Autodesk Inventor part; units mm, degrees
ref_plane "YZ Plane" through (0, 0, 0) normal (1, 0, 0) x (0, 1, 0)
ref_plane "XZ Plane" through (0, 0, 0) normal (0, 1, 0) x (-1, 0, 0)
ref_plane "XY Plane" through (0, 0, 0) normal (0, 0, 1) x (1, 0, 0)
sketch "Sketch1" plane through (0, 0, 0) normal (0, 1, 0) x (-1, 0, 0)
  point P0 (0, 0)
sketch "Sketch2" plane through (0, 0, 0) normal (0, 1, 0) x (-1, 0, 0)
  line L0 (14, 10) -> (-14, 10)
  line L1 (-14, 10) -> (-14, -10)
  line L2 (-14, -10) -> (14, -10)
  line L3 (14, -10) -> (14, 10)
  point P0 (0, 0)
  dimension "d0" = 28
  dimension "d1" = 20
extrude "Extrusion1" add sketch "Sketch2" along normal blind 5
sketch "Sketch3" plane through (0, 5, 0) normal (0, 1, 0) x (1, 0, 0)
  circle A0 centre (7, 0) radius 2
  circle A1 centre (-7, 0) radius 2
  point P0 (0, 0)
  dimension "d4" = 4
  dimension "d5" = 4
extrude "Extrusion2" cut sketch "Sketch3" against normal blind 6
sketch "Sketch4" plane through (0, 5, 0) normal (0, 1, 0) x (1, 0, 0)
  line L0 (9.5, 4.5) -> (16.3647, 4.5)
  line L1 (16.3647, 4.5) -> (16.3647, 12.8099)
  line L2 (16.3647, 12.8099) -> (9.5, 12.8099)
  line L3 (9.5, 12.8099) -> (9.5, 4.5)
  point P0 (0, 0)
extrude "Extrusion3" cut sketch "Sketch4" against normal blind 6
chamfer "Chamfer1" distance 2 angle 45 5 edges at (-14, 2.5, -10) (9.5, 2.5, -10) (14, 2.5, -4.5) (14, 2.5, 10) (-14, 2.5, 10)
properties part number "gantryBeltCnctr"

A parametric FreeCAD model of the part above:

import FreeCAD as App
import Part
import Sketcher


def edges_at(feature, points):
    """Names of the edges that pass closest to the given points."""
    edges = feature.Shape.Edges
    near = lambda p: min(range(len(edges)), key=lambda i: edges[i].distToShape(Part.Vertex(*p))[0])
    return sorted({f"Edge{near(p) + 1}" for p in points})


def add_polygon(sketch, points):
    """Adds a closed chain of lines whose ends are joined by coincident constraints."""
    first, n = sketch.GeometryCount, len(points)
    for a, b in zip(points, points[1:] + points[:1]):
        sketch.addGeometry(Part.LineSegment(App.Vector(*a, 0), App.Vector(*b, 0)), False)
    for i in range(n):
        sketch.addConstraint(Sketcher.Constraint("Coincident", first + i, 2, first + (i + 1) % n, 1))

doc = App.newDocument("Part")
body = doc.addObject("PartDesign::Body", "Body")

# Sketch on XZ plane
sketch1 = doc.addObject("Sketcher::SketchObject", "Sketch")
body.addObject(sketch1)
sketch1.AttachmentSupport = (doc.XZ_Plane, [""])
sketch1.MapMode = "FlatFace"
add_polygon(sketch1, [(-14, -10), (-14, 10), (14, 10), (14, -10)])  # lines 0-3
sketch1.addConstraint(Sketcher.Constraint("Vertical", 0))
sketch1.addConstraint(Sketcher.Constraint("Horizontal", 1))
sketch1.addConstraint(Sketcher.Constraint("Vertical", 2))
sketch1.addConstraint(Sketcher.Constraint("Horizontal", 3))
sketch1.addConstraint(Sketcher.Constraint("Symmetric", 0, 2, 2, 2, -1, 1))
sketch1.addConstraint(Sketcher.Constraint("DistanceX", 1, 1, 1, 2, 28.0))
sketch1.addConstraint(Sketcher.Constraint("DistanceY", 0, 1, 0, 2, 20.0))
pad1 = doc.addObject("PartDesign::Pad", "Pad")
body.addObject(pad1)
pad1.Profile = sketch1
pad1.Length = 5
pad1.Reversed = True

# Sketch on XZ plane
sketch2 = doc.addObject("Sketcher::SketchObject", "Sketch001")
body.addObject(sketch2)
sketch2.AttachmentSupport = (doc.XZ_Plane, [""])
sketch2.MapMode = "FlatFace"
sketch2.AttachmentOffset = App.Placement(App.Vector(0, 0, -5), App.Rotation())
sketch2.addGeometry(Part.Circle(App.Vector(7, 0, 0), App.Vector(0, 0, 1), 2), False)
sketch2.addGeometry(Part.Circle(App.Vector(-7, 0, 0), App.Vector(0, 0, 1), 2), False)
sketch2.addConstraint(Sketcher.Constraint("Equal", 0, 1))
sketch2.addConstraint(Sketcher.Constraint("Symmetric", 0, 3, 1, 3, -1, 1))
sketch2.addConstraint(Sketcher.Constraint("PointOnObject", 0, 3, -1))
sketch2.addConstraint(Sketcher.Constraint("Diameter", 0, 4.0))
sketch2.addConstraint(Sketcher.Constraint("DistanceX", -1, 1, 0, 3, 7.0))
pocket1 = doc.addObject("PartDesign::Pocket", "Pocket")
body.addObject(pocket1)
pocket1.Profile = sketch2
pocket1.Length = 6
pocket1.Reversed = True

# Sketch on XZ plane
sketch3 = doc.addObject("Sketcher::SketchObject", "Sketch002")
body.addObject(sketch3)
sketch3.AttachmentSupport = (doc.XZ_Plane, [""])
sketch3.MapMode = "FlatFace"
sketch3.AttachmentOffset = App.Placement(App.Vector(0, 0, -5), App.Rotation())
add_polygon(sketch3, [(9.5, -12.8099), (9.5, -4.5), (16.3647, -4.5), (16.3647, -12.8099)])  # lines 0-3
sketch3.addConstraint(Sketcher.Constraint("Vertical", 0))
sketch3.addConstraint(Sketcher.Constraint("Horizontal", 1))
sketch3.addConstraint(Sketcher.Constraint("Vertical", 2))
sketch3.addConstraint(Sketcher.Constraint("Horizontal", 3))
sketch3.addConstraint(Sketcher.Constraint("DistanceY", 0, 1, 0, 2, 8.31))
sketch3.addConstraint(Sketcher.Constraint("DistanceX", -1, 1, 0, 2, 9.5))
sketch3.addConstraint(Sketcher.Constraint("DistanceY", 0, 2, -1, 1, 4.5))
sketch3.addConstraint(Sketcher.Constraint("DistanceX", 1, 1, 1, 2, 6.8647))
pocket2 = doc.addObject("PartDesign::Pocket", "Pocket001")
body.addObject(pocket2)
pocket2.Profile = sketch3
pocket2.Length = 6
pocket2.Reversed = True
doc.recompute()

chamfer = doc.addObject("PartDesign::Chamfer", "Chamfer")
body.addObject(chamfer)
chamfer.Base = (pocket2, edges_at(pocket2, [
    (-14, 2.5, -10),
    (9.5, 2.5, -10),
    (14, 2.5, -4.5),
    (14, 2.5, 10),
    (-14, 2.5, 10),
]))
chamfer.Size = 2

doc.recompute()
